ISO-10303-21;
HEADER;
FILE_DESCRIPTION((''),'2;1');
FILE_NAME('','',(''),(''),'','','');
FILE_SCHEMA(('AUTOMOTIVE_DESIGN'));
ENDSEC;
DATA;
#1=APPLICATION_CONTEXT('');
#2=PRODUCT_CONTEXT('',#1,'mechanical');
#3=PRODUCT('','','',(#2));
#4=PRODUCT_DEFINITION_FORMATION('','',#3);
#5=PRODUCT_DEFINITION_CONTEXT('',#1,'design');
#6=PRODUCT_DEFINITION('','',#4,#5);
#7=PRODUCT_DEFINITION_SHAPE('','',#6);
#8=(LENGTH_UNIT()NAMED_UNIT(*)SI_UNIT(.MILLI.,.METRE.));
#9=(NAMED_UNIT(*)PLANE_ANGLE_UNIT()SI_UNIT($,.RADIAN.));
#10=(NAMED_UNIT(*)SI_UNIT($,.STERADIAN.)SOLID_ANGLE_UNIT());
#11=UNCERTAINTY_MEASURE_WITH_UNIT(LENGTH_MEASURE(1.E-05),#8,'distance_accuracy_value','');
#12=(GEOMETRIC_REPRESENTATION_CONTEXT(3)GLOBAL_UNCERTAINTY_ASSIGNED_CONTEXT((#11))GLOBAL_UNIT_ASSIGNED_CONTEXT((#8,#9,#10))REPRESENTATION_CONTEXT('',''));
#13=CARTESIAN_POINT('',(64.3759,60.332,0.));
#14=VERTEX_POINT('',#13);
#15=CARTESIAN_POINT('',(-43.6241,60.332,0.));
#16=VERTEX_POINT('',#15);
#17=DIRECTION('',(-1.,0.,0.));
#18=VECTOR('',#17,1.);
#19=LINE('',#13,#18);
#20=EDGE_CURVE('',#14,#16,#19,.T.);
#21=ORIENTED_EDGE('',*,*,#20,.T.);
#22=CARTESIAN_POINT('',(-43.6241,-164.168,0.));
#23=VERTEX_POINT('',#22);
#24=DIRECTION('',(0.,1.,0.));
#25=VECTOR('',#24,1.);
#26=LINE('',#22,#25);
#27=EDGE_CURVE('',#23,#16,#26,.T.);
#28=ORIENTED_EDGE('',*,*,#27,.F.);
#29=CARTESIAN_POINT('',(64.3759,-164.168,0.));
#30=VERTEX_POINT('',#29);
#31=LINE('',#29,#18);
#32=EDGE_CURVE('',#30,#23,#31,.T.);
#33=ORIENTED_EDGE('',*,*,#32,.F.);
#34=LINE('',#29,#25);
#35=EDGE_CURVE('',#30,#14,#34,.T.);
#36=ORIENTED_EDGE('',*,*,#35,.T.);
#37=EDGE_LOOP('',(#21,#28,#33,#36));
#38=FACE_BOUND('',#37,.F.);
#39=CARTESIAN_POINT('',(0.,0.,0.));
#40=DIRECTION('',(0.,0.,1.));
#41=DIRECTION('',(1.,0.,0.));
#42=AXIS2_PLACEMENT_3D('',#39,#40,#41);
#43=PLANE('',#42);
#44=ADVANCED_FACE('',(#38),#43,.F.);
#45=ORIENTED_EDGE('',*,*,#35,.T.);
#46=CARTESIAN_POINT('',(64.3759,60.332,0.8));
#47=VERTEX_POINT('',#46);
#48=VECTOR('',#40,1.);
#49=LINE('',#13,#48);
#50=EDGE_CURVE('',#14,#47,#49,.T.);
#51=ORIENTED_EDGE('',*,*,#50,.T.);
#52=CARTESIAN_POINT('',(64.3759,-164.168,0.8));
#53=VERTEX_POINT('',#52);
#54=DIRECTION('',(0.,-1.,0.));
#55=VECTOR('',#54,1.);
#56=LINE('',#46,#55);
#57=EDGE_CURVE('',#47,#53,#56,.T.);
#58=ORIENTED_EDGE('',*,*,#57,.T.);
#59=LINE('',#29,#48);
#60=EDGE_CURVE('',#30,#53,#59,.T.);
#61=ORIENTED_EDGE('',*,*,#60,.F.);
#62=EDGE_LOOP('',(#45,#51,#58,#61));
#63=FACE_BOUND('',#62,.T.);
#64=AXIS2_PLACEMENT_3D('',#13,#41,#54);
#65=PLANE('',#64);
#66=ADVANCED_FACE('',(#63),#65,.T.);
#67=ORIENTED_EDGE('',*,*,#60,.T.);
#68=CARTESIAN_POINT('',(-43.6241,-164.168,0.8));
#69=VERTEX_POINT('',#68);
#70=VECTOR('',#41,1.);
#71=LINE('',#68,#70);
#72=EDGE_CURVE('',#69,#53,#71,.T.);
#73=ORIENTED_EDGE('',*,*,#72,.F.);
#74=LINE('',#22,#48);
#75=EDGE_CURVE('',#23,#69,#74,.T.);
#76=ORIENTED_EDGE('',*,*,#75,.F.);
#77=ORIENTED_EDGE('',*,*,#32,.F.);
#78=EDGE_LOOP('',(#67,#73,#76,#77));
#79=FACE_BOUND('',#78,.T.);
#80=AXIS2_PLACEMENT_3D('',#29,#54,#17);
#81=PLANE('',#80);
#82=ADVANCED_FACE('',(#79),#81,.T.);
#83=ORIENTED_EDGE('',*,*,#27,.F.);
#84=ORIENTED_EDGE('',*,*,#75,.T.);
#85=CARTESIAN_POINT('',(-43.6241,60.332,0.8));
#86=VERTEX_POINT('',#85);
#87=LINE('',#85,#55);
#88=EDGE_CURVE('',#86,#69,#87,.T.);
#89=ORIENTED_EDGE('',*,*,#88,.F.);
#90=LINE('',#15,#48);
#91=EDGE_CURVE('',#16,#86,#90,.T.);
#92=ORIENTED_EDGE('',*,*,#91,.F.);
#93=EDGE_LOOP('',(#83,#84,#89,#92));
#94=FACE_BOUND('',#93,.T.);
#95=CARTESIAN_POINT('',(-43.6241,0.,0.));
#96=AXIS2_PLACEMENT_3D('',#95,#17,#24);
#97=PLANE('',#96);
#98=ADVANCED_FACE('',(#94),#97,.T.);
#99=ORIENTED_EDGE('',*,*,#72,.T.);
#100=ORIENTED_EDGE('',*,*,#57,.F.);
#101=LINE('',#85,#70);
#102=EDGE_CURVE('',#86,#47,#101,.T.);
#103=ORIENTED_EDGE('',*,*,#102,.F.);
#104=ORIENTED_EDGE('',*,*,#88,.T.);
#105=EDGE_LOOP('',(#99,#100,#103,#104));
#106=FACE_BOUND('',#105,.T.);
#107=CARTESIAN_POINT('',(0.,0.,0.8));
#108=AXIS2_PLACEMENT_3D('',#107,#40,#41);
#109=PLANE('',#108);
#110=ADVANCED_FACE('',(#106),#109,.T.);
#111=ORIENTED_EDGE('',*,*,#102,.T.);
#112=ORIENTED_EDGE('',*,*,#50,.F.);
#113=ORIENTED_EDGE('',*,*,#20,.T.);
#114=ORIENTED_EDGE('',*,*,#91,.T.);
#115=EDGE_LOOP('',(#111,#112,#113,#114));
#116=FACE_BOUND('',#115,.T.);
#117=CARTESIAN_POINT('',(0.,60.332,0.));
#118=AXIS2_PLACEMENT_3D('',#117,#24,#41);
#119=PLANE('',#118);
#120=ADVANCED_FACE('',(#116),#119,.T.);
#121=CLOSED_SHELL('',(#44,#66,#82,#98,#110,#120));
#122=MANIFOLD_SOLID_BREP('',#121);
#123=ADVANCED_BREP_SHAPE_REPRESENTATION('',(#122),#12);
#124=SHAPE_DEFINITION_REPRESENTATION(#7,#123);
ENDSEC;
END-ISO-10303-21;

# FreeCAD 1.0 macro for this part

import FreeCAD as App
import Part
import Sketcher

doc = App.newDocument("Part")
body = doc.addObject("PartDesign::Body", "Body")

sketch1 = body.newObject("Sketcher::SketchObject", "Sketch")
sketch1.AttachmentSupport = (doc.getObject("XY_Plane"), [""])
sketch1.MapMode = "FlatFace"
sketch1.addGeometry([
    Part.LineSegment(App.Vector(64, 60, 0), App.Vector(-44, 60, 0)),
    Part.LineSegment(App.Vector(-44, 60, 0), App.Vector(-44, -164, 0)),
    Part.LineSegment(App.Vector(-44, -164, 0), App.Vector(64, -164, 0)),
    Part.LineSegment(App.Vector(64, -164, 0), App.Vector(64, 60, 0)),
], False)
sketch1.addConstraint([
    Sketcher.Constraint("Coincident", 0, 2, 1, 1),
    Sketcher.Constraint("Coincident", 1, 2, 2, 1),
    Sketcher.Constraint("Coincident", 2, 2, 3, 1),
    Sketcher.Constraint("Coincident", 3, 2, 0, 1),
    Sketcher.Constraint("Horizontal", 0),
    Sketcher.Constraint("Vertical", 1),
    Sketcher.Constraint("Horizontal", 2),
    Sketcher.Constraint("Vertical", 3),
    Sketcher.Constraint("DistanceX", 0, 2, 0, 1, 108.0),
    Sketcher.Constraint("DistanceY", 1, 2, 1, 1, 224.5),
    Sketcher.Constraint("DistanceX", 0, 2, -1, 1, 43.624),
    Sketcher.Constraint("DistanceY", -1, 1, 0, 2, 60.332),
])
pad1 = body.newObject("PartDesign::Pad", "Pad")
pad1.Profile = sketch1
pad1.Length = 0.8

doc.recompute()
